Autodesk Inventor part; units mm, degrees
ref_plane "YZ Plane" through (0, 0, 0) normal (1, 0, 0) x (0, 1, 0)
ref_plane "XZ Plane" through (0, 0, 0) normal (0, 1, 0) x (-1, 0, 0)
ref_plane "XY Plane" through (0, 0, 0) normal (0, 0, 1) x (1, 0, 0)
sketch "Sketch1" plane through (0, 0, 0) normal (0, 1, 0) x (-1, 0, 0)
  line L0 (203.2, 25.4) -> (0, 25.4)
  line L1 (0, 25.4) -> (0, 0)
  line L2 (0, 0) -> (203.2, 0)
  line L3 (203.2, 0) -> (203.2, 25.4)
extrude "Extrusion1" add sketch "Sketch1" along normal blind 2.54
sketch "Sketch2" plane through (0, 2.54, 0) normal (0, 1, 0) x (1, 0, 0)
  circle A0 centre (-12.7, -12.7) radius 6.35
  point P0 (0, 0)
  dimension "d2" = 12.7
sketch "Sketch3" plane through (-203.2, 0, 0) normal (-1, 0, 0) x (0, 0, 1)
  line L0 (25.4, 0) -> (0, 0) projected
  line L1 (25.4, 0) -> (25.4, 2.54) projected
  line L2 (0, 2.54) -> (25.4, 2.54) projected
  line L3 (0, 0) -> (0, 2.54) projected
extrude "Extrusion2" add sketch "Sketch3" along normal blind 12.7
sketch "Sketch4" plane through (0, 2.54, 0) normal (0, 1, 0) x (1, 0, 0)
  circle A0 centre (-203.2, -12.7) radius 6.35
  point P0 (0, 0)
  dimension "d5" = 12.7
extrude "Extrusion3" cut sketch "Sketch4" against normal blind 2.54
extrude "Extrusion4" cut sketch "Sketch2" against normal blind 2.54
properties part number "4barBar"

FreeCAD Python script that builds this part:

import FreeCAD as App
import Part
import Sketcher
Q = App.Units.Quantity


def add_polygon(sketch, points):
    """Adds a closed chain of lines whose ends are joined by coincident constraints."""
    first, n = sketch.GeometryCount, len(points)
    for a, b in zip(points, points[1:] + points[:1]):
        sketch.addGeometry(Part.LineSegment(App.Vector(*a, 0), App.Vector(*b, 0)), False)
    for i in range(n):
        sketch.addConstraint(Sketcher.Constraint("Coincident", first + i, 2, first + (i + 1) % n, 1))

doc = App.newDocument("Part")
params = doc.addObject("Spreadsheet::Sheet", "Params")
for row, (alias, value) in enumerate([
    ("sketch1_width", "8 in"),
    ("sketch1_height", "1 in"),
    ("pad1_length", "0.1 in"),
    ("sketch2_height", "1 in"),
    ("sketch2_width", "0.1 in"),
    ("pad2_length", "0.5 in"),
    ("sketch3_diameter", "0.5 in"),
    ("pocket1_length", "0.1 in"),
    ("sketch4_diameter", "0.5 in"),
    ("pocket2_length", "0.1 in"),
], start=1):
    params.set(f"A{row}", alias)
    params.set(f"B{row}", "=" + value)
    params.setAlias(f"B{row}", alias)

body = doc.addObject("PartDesign::Body", "Body")

# Sketch on XZ plane
sketch1 = doc.addObject("Sketcher::SketchObject", "Sketch")
body.addObject(sketch1)
sketch1.AttachmentSupport = (doc.XZ_Plane, [""])
sketch1.MapMode = "FlatFace"
add_polygon(sketch1, [(-203.2, 0), (-203.2, 25.4), (0, 25.4), (0, 0)])  # lines 0-3
sketch1.addConstraint([
    Sketcher.Constraint("Vertical", 0),
    Sketcher.Constraint("Horizontal", 1),
    Sketcher.Constraint("Vertical", 2),
    Sketcher.Constraint("Horizontal", 3),
    Sketcher.Constraint("Coincident", 2, 2, -1, 1),
    Sketcher.Constraint("DistanceX", 1, 1, 1, 2, Q("8 in")),
    Sketcher.Constraint("DistanceY", 0, 1, 0, 2, Q("1 in")),
])
sketch1.setExpression("Constraints[9]", "Params.sketch1_width")
sketch1.setExpression("Constraints[10]", "Params.sketch1_height")
pad1 = doc.addObject("PartDesign::Pad", "Pad")
body.addObject(pad1)
pad1.Profile = sketch1
pad1.setExpression("Length", "Params.pad1_length")
pad1.Reversed = True

# Sketch on YZ plane
sketch2 = doc.addObject("Sketcher::SketchObject", "Sketch001")
body.addObject(sketch2)
sketch2.AttachmentSupport = (doc.YZ_Plane, [""])
sketch2.MapMode = "FlatFace"
sketch2.AttachmentOffset = App.Placement(App.Vector(0, 0, -8 * 25.4), App.Rotation())
add_polygon(sketch2, [(0, 0), (0, 25.4), (2.54, 25.4), (2.54, 0)])  # lines 0-3
sketch2.addConstraint([
    Sketcher.Constraint("Vertical", 0),
    Sketcher.Constraint("Horizontal", 1),
    Sketcher.Constraint("Vertical", 2),
    Sketcher.Constraint("Horizontal", 3),
    Sketcher.Constraint("Coincident", 3, 2, -1, 1),
    Sketcher.Constraint("DistanceY", 0, 1, 0, 2, Q("1 in")),
    Sketcher.Constraint("DistanceX", 1, 1, 1, 2, Q("0.1 in")),
])
sketch2.setExpression("Constraints[9]", "Params.sketch2_height")
sketch2.setExpression("Constraints[10]", "Params.sketch2_width")
pad2 = doc.addObject("PartDesign::Pad", "Pad001")
body.addObject(pad2)
pad2.Profile = sketch2
pad2.setExpression("Length", "Params.pad2_length")
pad2.Reversed = True

# Sketch on XZ plane
sketch3 = doc.addObject("Sketcher::SketchObject", "Sketch002")
body.addObject(sketch3)
sketch3.AttachmentSupport = (doc.XZ_Plane, [""])
sketch3.MapMode = "FlatFace"
sketch3.AttachmentOffset = App.Placement(App.Vector(0, 0, -0.1 * 25.4), App.Rotation())
sketch3.addGeometry(Part.Circle(App.Vector(-203.2, 12.7, 0), App.Vector(0, 0, 1), 6.35), False)
sketch3.addConstraint([
    Sketcher.Constraint("Diameter", 0, Q("0.5 in")),
    Sketcher.Constraint("DistanceY", -1, 1, 0, 3, Q("0.5 in")),
    Sketcher.Constraint("DistanceX", 0, 3, -1, 1, Q("8 in")),
])
sketch3.setExpression("Constraints[0]", "Params.sketch3_diameter")
pocket1 = doc.addObject("PartDesign::Pocket", "Pocket")
body.addObject(pocket1)
pocket1.Profile = sketch3
pocket1.setExpression("Length", "Params.pocket1_length")
pocket1.Reversed = True

# Sketch on XZ plane
sketch4 = doc.addObject("Sketcher::SketchObject", "Sketch003")
body.addObject(sketch4)
sketch4.AttachmentSupport = (doc.XZ_Plane, [""])
sketch4.MapMode = "FlatFace"
sketch4.AttachmentOffset = App.Placement(App.Vector(0, 0, -0.1 * 25.4), App.Rotation())
sketch4.addGeometry(Part.Circle(App.Vector(-12.7, 12.7, 0), App.Vector(0, 0, 1), 6.35), False)
sketch4.addConstraint([
    Sketcher.Constraint("Diameter", 0, Q("0.5 in")),
    Sketcher.Constraint("DistanceX", 0, 3, -1, 1, Q("0.5 in")),
    Sketcher.Constraint("DistanceY", -1, 1, 0, 3, Q("0.5 in")),
])
sketch4.setExpression("Constraints[0]", "Params.sketch4_diameter")
pocket2 = doc.addObject("PartDesign::Pocket", "Pocket001")
body.addObject(pocket2)
pocket2.Profile = sketch4
pocket2.setExpression("Length", "Params.pocket2_length")
pocket2.Reversed = True

doc.recompute()
